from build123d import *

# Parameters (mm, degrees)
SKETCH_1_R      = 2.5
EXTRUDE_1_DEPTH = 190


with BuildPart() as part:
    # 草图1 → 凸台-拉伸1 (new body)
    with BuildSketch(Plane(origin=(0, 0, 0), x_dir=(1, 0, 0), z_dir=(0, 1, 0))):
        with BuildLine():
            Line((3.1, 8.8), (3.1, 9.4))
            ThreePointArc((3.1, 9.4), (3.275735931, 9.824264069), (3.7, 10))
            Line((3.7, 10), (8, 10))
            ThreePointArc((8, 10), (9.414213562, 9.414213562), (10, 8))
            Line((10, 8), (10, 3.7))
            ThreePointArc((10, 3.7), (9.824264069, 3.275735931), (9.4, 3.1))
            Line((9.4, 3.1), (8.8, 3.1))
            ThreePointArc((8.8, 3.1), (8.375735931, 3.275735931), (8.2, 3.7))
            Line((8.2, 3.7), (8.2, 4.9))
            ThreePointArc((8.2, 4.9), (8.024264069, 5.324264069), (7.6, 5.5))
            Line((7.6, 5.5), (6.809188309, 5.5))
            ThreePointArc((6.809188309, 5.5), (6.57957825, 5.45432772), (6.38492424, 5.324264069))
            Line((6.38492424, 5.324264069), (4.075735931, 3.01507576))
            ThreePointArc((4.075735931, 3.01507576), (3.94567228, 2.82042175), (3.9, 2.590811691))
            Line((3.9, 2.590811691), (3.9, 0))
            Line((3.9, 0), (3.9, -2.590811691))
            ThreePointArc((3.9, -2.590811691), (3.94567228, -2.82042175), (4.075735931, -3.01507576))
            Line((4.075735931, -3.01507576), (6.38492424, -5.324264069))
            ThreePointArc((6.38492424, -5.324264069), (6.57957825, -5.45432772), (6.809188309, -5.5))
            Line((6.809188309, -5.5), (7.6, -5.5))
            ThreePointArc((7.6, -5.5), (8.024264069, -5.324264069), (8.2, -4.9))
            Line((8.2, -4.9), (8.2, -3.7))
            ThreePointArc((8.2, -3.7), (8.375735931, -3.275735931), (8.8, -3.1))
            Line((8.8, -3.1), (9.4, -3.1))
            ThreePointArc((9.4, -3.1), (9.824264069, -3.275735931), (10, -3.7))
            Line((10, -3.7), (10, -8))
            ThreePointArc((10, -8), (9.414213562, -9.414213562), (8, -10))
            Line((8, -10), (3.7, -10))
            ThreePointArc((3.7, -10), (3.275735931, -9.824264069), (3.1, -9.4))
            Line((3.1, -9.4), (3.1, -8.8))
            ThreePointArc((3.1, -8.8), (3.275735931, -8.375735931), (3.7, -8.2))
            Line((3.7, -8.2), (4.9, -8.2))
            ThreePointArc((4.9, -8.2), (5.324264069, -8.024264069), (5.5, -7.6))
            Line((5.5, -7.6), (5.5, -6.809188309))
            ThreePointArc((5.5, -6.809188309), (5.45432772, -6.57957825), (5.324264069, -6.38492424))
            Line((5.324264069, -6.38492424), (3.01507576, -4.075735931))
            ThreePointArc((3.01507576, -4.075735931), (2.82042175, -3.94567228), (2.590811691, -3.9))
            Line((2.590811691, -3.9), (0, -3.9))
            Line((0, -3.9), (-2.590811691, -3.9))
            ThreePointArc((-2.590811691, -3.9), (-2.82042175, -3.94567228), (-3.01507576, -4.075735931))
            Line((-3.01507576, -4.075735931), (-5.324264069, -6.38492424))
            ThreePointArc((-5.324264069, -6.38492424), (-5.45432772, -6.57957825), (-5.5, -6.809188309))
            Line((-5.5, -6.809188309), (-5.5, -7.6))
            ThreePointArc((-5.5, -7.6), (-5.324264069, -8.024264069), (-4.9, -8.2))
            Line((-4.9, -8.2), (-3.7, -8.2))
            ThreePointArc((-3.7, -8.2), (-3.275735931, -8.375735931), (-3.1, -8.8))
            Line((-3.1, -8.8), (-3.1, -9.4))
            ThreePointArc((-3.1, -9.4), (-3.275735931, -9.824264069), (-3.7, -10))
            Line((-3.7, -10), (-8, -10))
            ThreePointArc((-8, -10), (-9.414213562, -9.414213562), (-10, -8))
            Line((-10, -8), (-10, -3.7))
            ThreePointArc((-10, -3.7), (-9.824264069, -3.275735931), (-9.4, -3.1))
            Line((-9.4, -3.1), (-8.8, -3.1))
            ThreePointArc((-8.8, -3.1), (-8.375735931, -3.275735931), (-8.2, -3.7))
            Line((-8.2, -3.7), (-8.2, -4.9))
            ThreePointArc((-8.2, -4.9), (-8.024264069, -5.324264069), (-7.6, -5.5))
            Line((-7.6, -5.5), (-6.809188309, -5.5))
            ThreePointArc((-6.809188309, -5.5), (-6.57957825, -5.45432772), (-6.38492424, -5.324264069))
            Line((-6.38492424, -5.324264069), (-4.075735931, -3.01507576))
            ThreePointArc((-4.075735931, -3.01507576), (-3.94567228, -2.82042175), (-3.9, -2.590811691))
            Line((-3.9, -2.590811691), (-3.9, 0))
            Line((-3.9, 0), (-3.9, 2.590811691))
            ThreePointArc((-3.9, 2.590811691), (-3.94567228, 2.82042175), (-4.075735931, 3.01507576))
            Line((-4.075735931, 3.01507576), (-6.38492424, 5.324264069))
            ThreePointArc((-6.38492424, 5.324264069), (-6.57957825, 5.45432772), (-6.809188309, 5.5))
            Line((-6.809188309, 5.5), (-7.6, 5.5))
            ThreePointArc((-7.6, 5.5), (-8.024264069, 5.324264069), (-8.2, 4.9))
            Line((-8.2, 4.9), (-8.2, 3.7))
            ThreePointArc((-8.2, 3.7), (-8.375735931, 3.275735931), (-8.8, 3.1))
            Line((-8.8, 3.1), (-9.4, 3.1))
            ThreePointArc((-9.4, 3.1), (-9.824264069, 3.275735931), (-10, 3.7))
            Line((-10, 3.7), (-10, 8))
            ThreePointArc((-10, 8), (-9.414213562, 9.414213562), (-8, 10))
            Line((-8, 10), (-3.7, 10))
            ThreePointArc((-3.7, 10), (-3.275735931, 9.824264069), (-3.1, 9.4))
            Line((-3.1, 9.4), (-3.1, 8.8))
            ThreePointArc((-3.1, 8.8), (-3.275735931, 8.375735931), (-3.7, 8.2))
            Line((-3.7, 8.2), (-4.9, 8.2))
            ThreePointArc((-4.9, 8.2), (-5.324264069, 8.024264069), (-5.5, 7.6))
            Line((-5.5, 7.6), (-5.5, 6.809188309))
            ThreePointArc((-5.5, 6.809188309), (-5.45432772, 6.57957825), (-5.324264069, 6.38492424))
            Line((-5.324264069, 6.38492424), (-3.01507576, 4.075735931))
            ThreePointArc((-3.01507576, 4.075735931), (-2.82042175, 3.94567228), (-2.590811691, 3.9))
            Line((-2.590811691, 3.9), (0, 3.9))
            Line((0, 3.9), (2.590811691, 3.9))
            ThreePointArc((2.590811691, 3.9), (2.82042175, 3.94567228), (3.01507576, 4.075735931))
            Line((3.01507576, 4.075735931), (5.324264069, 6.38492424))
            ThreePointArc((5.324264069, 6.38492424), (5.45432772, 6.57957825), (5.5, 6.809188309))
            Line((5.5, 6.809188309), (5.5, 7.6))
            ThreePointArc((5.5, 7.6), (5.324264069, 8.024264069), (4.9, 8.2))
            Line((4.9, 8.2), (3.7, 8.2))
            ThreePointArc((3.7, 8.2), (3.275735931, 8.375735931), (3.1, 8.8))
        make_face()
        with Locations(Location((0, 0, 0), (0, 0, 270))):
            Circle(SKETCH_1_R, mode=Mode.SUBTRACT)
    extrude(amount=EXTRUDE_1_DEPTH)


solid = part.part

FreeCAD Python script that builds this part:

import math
import FreeCAD as App
import Part
import Sketcher

V = App.Vector

doc = App.newDocument("Part")
body = doc.addObject("PartDesign::Body", "Body")

# Sketch on XZ plane
sketch1 = body.newObject("Sketcher::SketchObject", "Sketch")
sketch1.AttachmentSupport = (doc.getObject("XZ_Plane"), [""])
sketch1.MapMode = "FlatFace"
sketch1.addGeometry([
    Part.LineSegment(V(3.1, -9.4, 0), V(3.1, -8.8, 0)),  # 0
    Part.ArcOfCircle(Part.Circle(V(3.7, -8.8, 0), V(0, 0, 1), 0.6), math.radians(90), math.radians(180)),  # 1
    Part.LineSegment(V(3.7, -8.2, 0), V(4.9, -8.2, 0)),  # 2
    Part.ArcOfCircle(Part.Circle(V(4.9, -7.6, 0), V(0, 0, 1), 0.6), math.radians(-90), math.radians(0)),  # 3
    Part.LineSegment(V(5.5, -7.6, 0), V(5.5, -6.81, 0)),  # 4
    Part.ArcOfCircle(Part.Circle(V(4.9, -6.81, 0), V(0, 0, 1), 0.6), math.radians(0), math.radians(45)),  # 5
    Part.LineSegment(V(5.32, -6.38, 0), V(3.02, -4.08, 0)),  # 6
    Part.ArcOfCircle(Part.Circle(V(2.59, -4.5, 0), V(0, 0, 1), 0.6), math.radians(45), math.radians(90)),  # 7
    Part.LineSegment(V(2.59, -3.9, 0), V(-2.59, -3.9, 0)),  # 8
    Part.ArcOfCircle(Part.Circle(V(-2.59, -4.5, 0), V(0, 0, 1), 0.6), math.radians(90), math.radians(135)),  # 9
    Part.LineSegment(V(-3.02, -4.08, 0), V(-5.32, -6.38, 0)),  # 10
    Part.ArcOfCircle(Part.Circle(V(-4.9, -6.81, 0), V(0, 0, 1), 0.6), math.radians(135), math.radians(180)),  # 11
    Part.LineSegment(V(-5.5, -6.81, 0), V(-5.5, -7.6, 0)),  # 12
    Part.ArcOfCircle(Part.Circle(V(-4.9, -7.6, 0), V(0, 0, 1), 0.6), math.radians(180), math.radians(270)),  # 13
    Part.LineSegment(V(-4.9, -8.2, 0), V(-3.7, -8.2, 0)),  # 14
    Part.ArcOfCircle(Part.Circle(V(-3.7, -8.8, 0), V(0, 0, 1), 0.6), math.radians(0), math.radians(90)),  # 15
    Part.LineSegment(V(-3.1, -8.8, 0), V(-3.1, -9.4, 0)),  # 16
    Part.ArcOfCircle(Part.Circle(V(-3.7, -9.4, 0), V(0, 0, 1), 0.6), math.radians(-90), math.radians(0)),  # 17
    Part.LineSegment(V(-3.7, -10, 0), V(-8, -10, 0)),  # 18
    Part.ArcOfCircle(Part.Circle(V(-8, -8, 0), V(0, 0, 1), 2), math.radians(-180), math.radians(-90)),  # 19
    Part.LineSegment(V(-10, -8, 0), V(-10, -3.7, 0)),  # 20
    Part.ArcOfCircle(Part.Circle(V(-9.4, -3.7, 0), V(0, 0, 1), 0.6), math.radians(90), math.radians(180)),  # 21
    Part.LineSegment(V(-9.4, -3.1, 0), V(-8.8, -3.1, 0)),  # 22
    Part.ArcOfCircle(Part.Circle(V(-8.8, -3.7, 0), V(0, 0, 1), 0.6), math.radians(0), math.radians(90)),  # 23
    Part.LineSegment(V(-8.2, -3.7, 0), V(-8.2, -4.9, 0)),  # 24
    Part.ArcOfCircle(Part.Circle(V(-7.6, -4.9, 0), V(0, 0, 1), 0.6), math.radians(180), math.radians(270)),  # 25
    Part.LineSegment(V(-7.6, -5.5, 0), V(-6.81, -5.5, 0)),  # 26
    Part.ArcOfCircle(Part.Circle(V(-6.81, -4.9, 0), V(0, 0, 1), 0.6), math.radians(-90), math.radians(-45)),  # 27
    Part.LineSegment(V(-6.38, -5.32, 0), V(-4.08, -3.02, 0)),  # 28
    Part.ArcOfCircle(Part.Circle(V(-4.5, -2.59, 0), V(0, 0, 1), 0.6), math.radians(-45), math.radians(0)),  # 29
    Part.LineSegment(V(-3.9, -2.59, 0), V(-3.9, 2.59, 0)),  # 30
    Part.ArcOfCircle(Part.Circle(V(-4.5, 2.59, 0), V(0, 0, 1), 0.6), math.radians(0), math.radians(45)),  # 31
    Part.LineSegment(V(-4.08, 3.02, 0), V(-6.38, 5.32, 0)),  # 32
    Part.ArcOfCircle(Part.Circle(V(-6.81, 4.9, 0), V(0, 0, 1), 0.6), math.radians(45), math.radians(90)),  # 33
    Part.LineSegment(V(-6.81, 5.5, 0), V(-7.6, 5.5, 0)),  # 34
    Part.ArcOfCircle(Part.Circle(V(-7.6, 4.9, 0), V(0, 0, 1), 0.6), math.radians(90), math.radians(180)),  # 35
    Part.LineSegment(V(-8.2, 4.9, 0), V(-8.2, 3.7, 0)),  # 36
    Part.ArcOfCircle(Part.Circle(V(-8.8, 3.7, 0), V(0, 0, 1), 0.6), math.radians(-90), math.radians(0)),  # 37
    Part.LineSegment(V(-8.8, 3.1, 0), V(-9.4, 3.1, 0)),  # 38
    Part.ArcOfCircle(Part.Circle(V(-9.4, 3.7, 0), V(0, 0, 1), 0.6), math.radians(180), math.radians(270)),  # 39
    Part.LineSegment(V(-10, 3.7, 0), V(-10, 8, 0)),  # 40
    Part.ArcOfCircle(Part.Circle(V(-8, 8, 0), V(0, 0, 1), 2), math.radians(90), math.radians(180)),  # 41
    Part.LineSegment(V(-8, 10, 0), V(-3.7, 10, 0)),  # 42
    Part.ArcOfCircle(Part.Circle(V(-3.7, 9.4, 0), V(0, 0, 1), 0.6), math.radians(0), math.radians(90)),  # 43
    Part.LineSegment(V(-3.1, 9.4, 0), V(-3.1, 8.8, 0)),  # 44
    Part.ArcOfCircle(Part.Circle(V(-3.7, 8.8, 0), V(0, 0, 1), 0.6), math.radians(-90), math.radians(0)),  # 45
    Part.LineSegment(V(-3.7, 8.2, 0), V(-4.9, 8.2, 0)),  # 46
    Part.ArcOfCircle(Part.Circle(V(-4.9, 7.6, 0), V(0, 0, 1), 0.6), math.radians(90), math.radians(180)),  # 47
    Part.LineSegment(V(-5.5, 7.6, 0), V(-5.5, 6.81, 0)),  # 48
    Part.ArcOfCircle(Part.Circle(V(-4.9, 6.81, 0), V(0, 0, 1), 0.6), math.radians(180), math.radians(225)),  # 49
    Part.LineSegment(V(-5.32, 6.38, 0), V(-3.02, 4.08, 0)),  # 50
    Part.ArcOfCircle(Part.Circle(V(-2.59, 4.5, 0), V(0, 0, 1), 0.6), math.radians(-135), math.radians(-90)),  # 51
    Part.LineSegment(V(-2.59, 3.9, 0), V(2.59, 3.9, 0)),  # 52
    Part.ArcOfCircle(Part.Circle(V(2.59, 4.5, 0), V(0, 0, 1), 0.6), math.radians(-90), math.radians(-45)),  # 53
    Part.LineSegment(V(3.02, 4.08, 0), V(5.32, 6.38, 0)),  # 54
    Part.ArcOfCircle(Part.Circle(V(4.9, 6.81, 0), V(0, 0, 1), 0.6), math.radians(-45), math.radians(0)),  # 55
    Part.LineSegment(V(5.5, 6.81, 0), V(5.5, 7.6, 0)),  # 56
    Part.ArcOfCircle(Part.Circle(V(4.9, 7.6, 0), V(0, 0, 1), 0.6), math.radians(0), math.radians(90)),  # 57
    Part.LineSegment(V(4.9, 8.2, 0), V(3.7, 8.2, 0)),  # 58
    Part.ArcOfCircle(Part.Circle(V(3.7, 8.8, 0), V(0, 0, 1), 0.6), math.radians(180), math.radians(270)),  # 59
    Part.LineSegment(V(3.1, 8.8, 0), V(3.1, 9.4, 0)),  # 60
    Part.ArcOfCircle(Part.Circle(V(3.7, 9.4, 0), V(0, 0, 1), 0.6), math.radians(90), math.radians(180)),  # 61
    Part.LineSegment(V(3.7, 10, 0), V(8, 10, 0)),  # 62
    Part.ArcOfCircle(Part.Circle(V(8, 8, 0), V(0, 0, 1), 2), math.radians(0), math.radians(90)),  # 63
    Part.LineSegment(V(10, 8, 0), V(10, 3.7, 0)),  # 64
    Part.ArcOfCircle(Part.Circle(V(9.4, 3.7, 0), V(0, 0, 1), 0.6), math.radians(-90), math.radians(0)),  # 65
    Part.LineSegment(V(9.4, 3.1, 0), V(8.8, 3.1, 0)),  # 66
    Part.ArcOfCircle(Part.Circle(V(8.8, 3.7, 0), V(0, 0, 1), 0.6), math.radians(180), math.radians(270)),  # 67
    Part.LineSegment(V(8.2, 3.7, 0), V(8.2, 4.9, 0)),  # 68
    Part.ArcOfCircle(Part.Circle(V(7.6, 4.9, 0), V(0, 0, 1), 0.6), math.radians(0), math.radians(90)),  # 69
    Part.LineSegment(V(7.6, 5.5, 0), V(6.81, 5.5, 0)),  # 70
    Part.ArcOfCircle(Part.Circle(V(6.81, 4.9, 0), V(0, 0, 1), 0.6), math.radians(90), math.radians(135)),  # 71
    Part.LineSegment(V(6.38, 5.32, 0), V(4.08, 3.02, 0)),  # 72
    Part.ArcOfCircle(Part.Circle(V(4.5, 2.59, 0), V(0, 0, 1), 0.6), math.radians(135), math.radians(180)),  # 73
    Part.LineSegment(V(3.9, 2.59, 0), V(3.9, -2.59, 0)),  # 74
    Part.ArcOfCircle(Part.Circle(V(4.5, -2.59, 0), V(0, 0, 1), 0.6), math.radians(180), math.radians(225)),  # 75
    Part.LineSegment(V(4.08, -3.02, 0), V(6.38, -5.32, 0)),  # 76
    Part.ArcOfCircle(Part.Circle(V(6.81, -4.9, 0), V(0, 0, 1), 0.6), math.radians(-135), math.radians(-90)),  # 77
    Part.LineSegment(V(6.81, -5.5, 0), V(7.6, -5.5, 0)),  # 78
    Part.ArcOfCircle(Part.Circle(V(7.6, -4.9, 0), V(0, 0, 1), 0.6), math.radians(-90), math.radians(0)),  # 79
    Part.LineSegment(V(8.2, -4.9, 0), V(8.2, -3.7, 0)),  # 80
    Part.ArcOfCircle(Part.Circle(V(8.8, -3.7, 0), V(0, 0, 1), 0.6), math.radians(90), math.radians(180)),  # 81
    Part.LineSegment(V(8.8, -3.1, 0), V(9.4, -3.1, 0)),  # 82
    Part.ArcOfCircle(Part.Circle(V(9.4, -3.7, 0), V(0, 0, 1), 0.6), math.radians(0), math.radians(90)),  # 83
    Part.LineSegment(V(10, -3.7, 0), V(10, -8, 0)),  # 84
    Part.ArcOfCircle(Part.Circle(V(8, -8, 0), V(0, 0, 1), 2), math.radians(-90), math.radians(0)),  # 85
    Part.LineSegment(V(8, -10, 0), V(3.7, -10, 0)),  # 86
    Part.ArcOfCircle(Part.Circle(V(3.7, -9.4, 0), V(0, 0, 1), 0.6), math.radians(180), math.radians(270)),  # 87
    Part.Circle(V(0, 0, 0), V(0, 0, 1), 2.5),  # 88
], False)
sketch1.addConstraint([
    Sketcher.Constraint("Tangent", 0, 2, 1, 2),
    Sketcher.Constraint("Tangent", 1, 1, 2, 1),
    Sketcher.Constraint("Tangent", 2, 2, 3, 1),
    Sketcher.Constraint("Tangent", 3, 2, 4, 1),
    Sketcher.Constraint("Tangent", 4, 2, 5, 1),
    Sketcher.Constraint("Tangent", 5, 2, 6, 1),
    Sketcher.Constraint("Tangent", 6, 2, 7, 1),
    Sketcher.Constraint("Tangent", 7, 2, 8, 1),
    Sketcher.Constraint("Tangent", 8, 2, 9, 1),
    Sketcher.Constraint("Tangent", 9, 2, 10, 1),
    Sketcher.Constraint("Tangent", 10, 2, 11, 1),
    Sketcher.Constraint("Tangent", 11, 2, 12, 1),
    Sketcher.Constraint("Tangent", 12, 2, 13, 1),
    Sketcher.Constraint("Tangent", 13, 2, 14, 1),
    Sketcher.Constraint("Tangent", 14, 2, 15, 2),
    Sketcher.Constraint("Tangent", 15, 1, 16, 1),
    Sketcher.Constraint("Tangent", 16, 2, 17, 2),
    Sketcher.Constraint("Tangent", 17, 1, 18, 1),
    Sketcher.Constraint("Tangent", 18, 2, 19, 2),
    Sketcher.Constraint("Tangent", 19, 1, 20, 1),
    Sketcher.Constraint("Tangent", 20, 2, 21, 2),
    Sketcher.Constraint("Tangent", 21, 1, 22, 1),
    Sketcher.Constraint("Tangent", 22, 2, 23, 2),
    Sketcher.Constraint("Tangent", 23, 1, 24, 1),
    Sketcher.Constraint("Tangent", 24, 2, 25, 1),
    Sketcher.Constraint("Tangent", 25, 2, 26, 1),
    Sketcher.Constraint("Tangent", 26, 2, 27, 1),
    Sketcher.Constraint("Tangent", 27, 2, 28, 1),
    Sketcher.Constraint("Tangent", 28, 2, 29, 1),
    Sketcher.Constraint("Tangent", 29, 2, 30, 1),
    Sketcher.Constraint("Tangent", 30, 2, 31, 1),
    Sketcher.Constraint("Tangent", 31, 2, 32, 1),
    Sketcher.Constraint("Tangent", 32, 2, 33, 1),
    Sketcher.Constraint("Tangent", 33, 2, 34, 1),
    Sketcher.Constraint("Tangent", 34, 2, 35, 1),
    Sketcher.Constraint("Tangent", 35, 2, 36, 1),
    Sketcher.Constraint("Tangent", 36, 2, 37, 2),
    Sketcher.Constraint("Tangent", 37, 1, 38, 1),
    Sketcher.Constraint("Tangent", 38, 2, 39, 2),
    Sketcher.Constraint("Tangent", 39, 1, 40, 1),
    Sketcher.Constraint("Tangent", 40, 2, 41, 2),
    Sketcher.Constraint("Tangent", 41, 1, 42, 1),
    Sketcher.Constraint("Tangent", 42, 2, 43, 2),
    Sketcher.Constraint("Tangent", 43, 1, 44, 1),
    Sketcher.Constraint("Tangent", 44, 2, 45, 2),
    Sketcher.Constraint("Tangent", 45, 1, 46, 1),
    Sketcher.Constraint("Tangent", 46, 2, 47, 1),
    Sketcher.Constraint("Tangent", 47, 2, 48, 1),
    Sketcher.Constraint("Tangent", 48, 2, 49, 1),
    Sketcher.Constraint("Tangent", 49, 2, 50, 1),
    Sketcher.Constraint("Tangent", 50, 2, 51, 1),
    Sketcher.Constraint("Tangent", 51, 2, 52, 1),
    Sketcher.Constraint("Tangent", 52, 2, 53, 1),
    Sketcher.Constraint("Tangent", 53, 2, 54, 1),
    Sketcher.Constraint("Tangent", 54, 2, 55, 1),
    Sketcher.Constraint("Tangent", 55, 2, 56, 1),
    Sketcher.Constraint("Tangent", 56, 2, 57, 1),
    Sketcher.Constraint("Tangent", 57, 2, 58, 1),
    Sketcher.Constraint("Tangent", 58, 2, 59, 2),
    Sketcher.Constraint("Tangent", 59, 1, 60, 1),
    Sketcher.Constraint("Tangent", 60, 2, 61, 2),
    Sketcher.Constraint("Tangent", 61, 1, 62, 1),
    Sketcher.Constraint("Tangent", 62, 2, 63, 2),
    Sketcher.Constraint("Tangent", 63, 1, 64, 1),
    Sketcher.Constraint("Tangent", 64, 2, 65, 2),
    Sketcher.Constraint("Tangent", 65, 1, 66, 1),
    Sketcher.Constraint("Tangent", 66, 2, 67, 2),
    Sketcher.Constraint("Tangent", 67, 1, 68, 1),
    Sketcher.Constraint("Tangent", 68, 2, 69, 1),
    Sketcher.Constraint("Tangent", 69, 2, 70, 1),
    Sketcher.Constraint("Tangent", 70, 2, 71, 1),
    Sketcher.Constraint("Tangent", 71, 2, 72, 1),
    Sketcher.Constraint("Tangent", 72, 2, 73, 1),
    Sketcher.Constraint("Tangent", 73, 2, 74, 1),
    Sketcher.Constraint("Tangent", 74, 2, 75, 1),
    Sketcher.Constraint("Tangent", 75, 2, 76, 1),
    Sketcher.Constraint("Tangent", 76, 2, 77, 1),
    Sketcher.Constraint("Tangent", 77, 2, 78, 1),
    Sketcher.Constraint("Tangent", 78, 2, 79, 1),
    Sketcher.Constraint("Tangent", 79, 2, 80, 1),
    Sketcher.Constraint("Tangent", 80, 2, 81, 2),
    Sketcher.Constraint("Tangent", 81, 1, 82, 1),
    Sketcher.Constraint("Tangent", 82, 2, 83, 2),
    Sketcher.Constraint("Tangent", 83, 1, 84, 1),
    Sketcher.Constraint("Tangent", 84, 2, 85, 2),
    Sketcher.Constraint("Tangent", 85, 1, 86, 1),
    Sketcher.Constraint("Tangent", 86, 2, 87, 2),
    Sketcher.Constraint("Tangent", 87, 1, 0, 1),
    Sketcher.Constraint("Vertical", 0),
    Sketcher.Constraint("Horizontal", 2),
    Sketcher.Constraint("Vertical", 4),
    Sketcher.Constraint("Horizontal", 8),
    Sketcher.Constraint("Vertical", 12),
    Sketcher.Constraint("Horizontal", 14),
    Sketcher.Constraint("Vertical", 16),
    Sketcher.Constraint("Horizontal", 18),
    Sketcher.Constraint("Vertical", 20),
    Sketcher.Constraint("Horizontal", 22),
    Sketcher.Constraint("Vertical", 24),
    Sketcher.Constraint("Horizontal", 26),
    Sketcher.Constraint("Vertical", 30),
    Sketcher.Constraint("Horizontal", 34),
    Sketcher.Constraint("Vertical", 36),
    Sketcher.Constraint("Horizontal", 38),
    Sketcher.Constraint("Vertical", 40),
    Sketcher.Constraint("Horizontal", 42),
    Sketcher.Constraint("Vertical", 44),
    Sketcher.Constraint("Horizontal", 46),
    Sketcher.Constraint("Vertical", 48),
    Sketcher.Constraint("Horizontal", 52),
    Sketcher.Constraint("Vertical", 56),
    Sketcher.Constraint("Horizontal", 58),
    Sketcher.Constraint("Vertical", 60),
    Sketcher.Constraint("Horizontal", 62),
    Sketcher.Constraint("Vertical", 64),
    Sketcher.Constraint("Horizontal", 66),
    Sketcher.Constraint("Vertical", 68),
    Sketcher.Constraint("Horizontal", 70),
    Sketcher.Constraint("Vertical", 74),
    Sketcher.Constraint("Horizontal", 78),
    Sketcher.Constraint("Vertical", 80),
    Sketcher.Constraint("Horizontal", 82),
    Sketcher.Constraint("Vertical", 84),
    Sketcher.Constraint("Horizontal", 86),
    Sketcher.Constraint("Coincident", 88, 3, -1, 1),
    Sketcher.Constraint("Equal", 1, 3),
    Sketcher.Constraint("Equal", 3, 5),
    Sketcher.Constraint("Equal", 5, 7),
    Sketcher.Constraint("Equal", 7, 9),
    Sketcher.Constraint("Equal", 9, 11),
    Sketcher.Constraint("Equal", 11, 13),
    Sketcher.Constraint("Equal", 13, 15),
    Sketcher.Constraint("Equal", 15, 17),
    Sketcher.Constraint("Equal", 17, 21),
    Sketcher.Constraint("Equal", 21, 23),
    Sketcher.Constraint("Equal", 23, 25),
    Sketcher.Constraint("Equal", 25, 27),
    Sketcher.Constraint("Equal", 27, 29),
    Sketcher.Constraint("Equal", 29, 31),
    Sketcher.Constraint("Equal", 31, 33),
    Sketcher.Constraint("Equal", 33, 35),
    Sketcher.Constraint("Equal", 35, 37),
    Sketcher.Constraint("Equal", 37, 39),
    Sketcher.Constraint("Equal", 19, 41),
    Sketcher.Constraint("Equal", 39, 43),
    Sketcher.Constraint("Equal", 43, 45),
    Sketcher.Constraint("Equal", 45, 47),
    Sketcher.Constraint("Equal", 47, 49),
    Sketcher.Constraint("Equal", 49, 51),
    Sketcher.Constraint("Equal", 51, 53),
    Sketcher.Constraint("Equal", 53, 55),
    Sketcher.Constraint("Equal", 55, 57),
    Sketcher.Constraint("Equal", 57, 59),
    Sketcher.Constraint("Equal", 59, 61),
    Sketcher.Constraint("Equal", 41, 63),
    Sketcher.Constraint("Equal", 61, 65),
    Sketcher.Constraint("Equal", 65, 67),
    Sketcher.Constraint("Equal", 67, 69),
    Sketcher.Constraint("Equal", 69, 71),
    Sketcher.Constraint("Equal", 71, 73),
    Sketcher.Constraint("Equal", 73, 75),
    Sketcher.Constraint("Equal", 75, 77),
    Sketcher.Constraint("Equal", 77, 79),
    Sketcher.Constraint("Equal", 79, 81),
    Sketcher.Constraint("Equal", 81, 83),
    Sketcher.Constraint("Equal", 63, 85),
    Sketcher.Constraint("Equal", 83, 87),
    Sketcher.Constraint("Symmetric", 1, 3, 45, 3, -1, 1),
    Sketcher.Constraint("Symmetric", 5, 3, 49, 3, -1, 1),
    Sketcher.Constraint("Symmetric", 7, 3, 51, 3, -1, 1),
    Sketcher.Constraint("Symmetric", 11, 3, 55, 3, -1, 1),
    Sketcher.Constraint("Symmetric", 15, 3, 59, 3, -1, 1),
    Sketcher.Constraint("Symmetric", 19, 3, 63, 3, -1, 1),
    Sketcher.Constraint("Symmetric", 23, 3, 67, 3, -1, 1),
    Sketcher.Constraint("Symmetric", 27, 3, 71, 3, -1, 1),
    Sketcher.Constraint("Symmetric", 29, 3, 73, 3, -1, 1),
    Sketcher.Constraint("Symmetric", 33, 3, 77, 3, -1, 1),
    Sketcher.Constraint("Symmetric", 37, 3, 81, 3, -1, 1),
    Sketcher.Constraint("Symmetric", 41, 3, 85, 3, -1, 1),
    Sketcher.Constraint("Symmetric", 5, 3, 11, 3, -2),
    Sketcher.Constraint("Symmetric", 1, 3, 15, 3, -2),
    Sketcher.Constraint("Symmetric", 41, 3, 63, 3, -2),
    Sketcher.Constraint("Symmetric", 37, 3, 67, 3, -2),
    Sketcher.Constraint("Symmetric", 33, 3, 71, 3, -2),
    Sketcher.Constraint("Perpendicular", 6, 10),
    Sketcher.Constraint("Parallel", 10, 28),
    Sketcher.Constraint("Perpendicular", 28, 32),
    Sketcher.Constraint("Perpendicular", 50, 54),
    Sketcher.Constraint("Perpendicular", 72, 76),
    Sketcher.Constraint("Horizontal", 31, 3, 73, 3),
    Sketcher.Constraint("Equal", 82, 0),
    Sketcher.Constraint("Equal", 78, 4),
    Sketcher.Constraint("Equal", 86, 20),
    Sketcher.Constraint("Equal", 58, 24),
    Sketcher.Constraint("Equal", 52, 30),
    Sketcher.Constraint("Equal", 10, 28),
    Sketcher.Constraint("Diameter", 88, 5.0),
    Sketcher.Constraint("Radius", 19, 2.0),
    Sketcher.Constraint("Radius", 1, 0.6),
    Sketcher.Constraint("DistanceX", 2, 1, 2, 2, 1.2),
    Sketcher.Constraint("DistanceX", 18, 2, 18, 1, 4.3),
    Sketcher.Constraint("DistanceX", 22, 1, 22, 2, 0.6),
    Sketcher.Constraint("DistanceX", 19, 3, -1, 1, 8.0),
    Sketcher.Constraint("DistanceY", 7, 3, -1, 1, 4.5),
    Sketcher.Constraint("DistanceX", 26, 1, 26, 2, 0.790812),
])
pad1 = body.newObject("PartDesign::Pad", "Pad")
pad1.Profile = sketch1
pad1.Length = 190
pad1.Reversed = True

doc.recompute()
